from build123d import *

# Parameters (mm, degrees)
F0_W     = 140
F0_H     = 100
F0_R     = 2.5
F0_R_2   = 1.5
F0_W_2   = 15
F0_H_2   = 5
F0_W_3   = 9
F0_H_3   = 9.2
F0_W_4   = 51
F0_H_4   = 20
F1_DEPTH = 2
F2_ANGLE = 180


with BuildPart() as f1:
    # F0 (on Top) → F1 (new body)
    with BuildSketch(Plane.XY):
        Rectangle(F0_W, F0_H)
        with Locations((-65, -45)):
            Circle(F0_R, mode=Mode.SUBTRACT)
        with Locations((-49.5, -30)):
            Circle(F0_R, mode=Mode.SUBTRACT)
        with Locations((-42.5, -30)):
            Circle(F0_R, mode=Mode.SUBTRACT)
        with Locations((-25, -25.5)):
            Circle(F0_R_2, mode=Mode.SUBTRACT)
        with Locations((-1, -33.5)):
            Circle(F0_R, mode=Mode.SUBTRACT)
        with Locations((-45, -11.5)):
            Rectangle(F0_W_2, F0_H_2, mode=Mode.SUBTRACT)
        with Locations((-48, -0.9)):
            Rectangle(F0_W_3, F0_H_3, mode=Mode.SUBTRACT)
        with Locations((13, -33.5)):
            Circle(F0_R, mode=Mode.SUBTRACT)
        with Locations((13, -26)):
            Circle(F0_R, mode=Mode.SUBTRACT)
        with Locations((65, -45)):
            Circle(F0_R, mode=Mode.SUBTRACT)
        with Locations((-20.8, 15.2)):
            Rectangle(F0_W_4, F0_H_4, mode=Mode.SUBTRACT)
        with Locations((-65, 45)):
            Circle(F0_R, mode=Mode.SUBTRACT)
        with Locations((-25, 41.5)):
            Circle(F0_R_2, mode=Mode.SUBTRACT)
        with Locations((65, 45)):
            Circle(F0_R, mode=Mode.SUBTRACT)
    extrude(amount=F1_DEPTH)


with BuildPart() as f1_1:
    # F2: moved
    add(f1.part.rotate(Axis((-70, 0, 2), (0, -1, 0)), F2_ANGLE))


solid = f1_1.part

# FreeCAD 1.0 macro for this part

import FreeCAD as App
import Part
import Sketcher

doc = App.newDocument("Part")
params = doc.addObject("Spreadsheet::Sheet", "Params")
for row, (alias, value) in enumerate([
    ("sketch1_diameter", "5 mm"),
    ("sketch1_diameter2", "3 mm"),
    ("sketch1_width", "140 mm"),
    ("sketch1_width2", "15 mm"),
    ("sketch1_width3", "9 mm"),
    ("pad1_length", "2 mm"),
], start=1):
    params.set(f"A{row}", alias)
    params.set(f"B{row}", "=" + value)
    params.setAlias(f"B{row}", alias)

body = doc.addObject("PartDesign::Body", "Body")

# Sketch on XY plane
sketch1 = body.newObject("Sketcher::SketchObject", "Sketch")
sketch1.AttachmentSupport = (doc.getObject("XY_Plane"), [""])
sketch1.MapMode = "FlatFace"
sketch1.addGeometry(Part.LineSegment(App.Vector(-70, 50, 0), App.Vector(-70, -50, 0)), False)
sketch1.addGeometry(Part.LineSegment(App.Vector(-70, -50, 0), App.Vector(70, -50, 0)), False)
sketch1.addGeometry(Part.LineSegment(App.Vector(70, -50, 0), App.Vector(70, 50, 0)), False)
sketch1.addGeometry(Part.LineSegment(App.Vector(70, 50, 0), App.Vector(-70, 50, 0)), False)
sketch1.addGeometry(Part.Circle(App.Vector(-65, -45, 0), App.Vector(0, 0, 1), 2.5), False)
sketch1.addGeometry(Part.Circle(App.Vector(-49.5, -30, 0), App.Vector(0, 0, 1), 2.5), False)
sketch1.addGeometry(Part.Circle(App.Vector(-42.5, -30, 0), App.Vector(0, 0, 1), 2.5), False)
sketch1.addGeometry(Part.Circle(App.Vector(-25, -25.5, 0), App.Vector(0, 0, 1), 1.5), False)
sketch1.addGeometry(Part.Circle(App.Vector(-1, -33.5, 0), App.Vector(0, 0, 1), 2.5), False)
sketch1.addGeometry(Part.LineSegment(App.Vector(-37.5, -14, 0), App.Vector(-52.5, -14, 0)), False)
sketch1.addGeometry(Part.LineSegment(App.Vector(-52.5, -14, 0), App.Vector(-52.5, -9, 0)), False)
sketch1.addGeometry(Part.LineSegment(App.Vector(-52.5, -9, 0), App.Vector(-37.5, -9, 0)), False)
sketch1.addGeometry(Part.LineSegment(App.Vector(-37.5, -9, 0), App.Vector(-37.5, -14, 0)), False)
sketch1.addGeometry(Part.LineSegment(App.Vector(-43.5, -5.5, 0), App.Vector(-52.5, -5.5, 0)), False)
sketch1.addGeometry(Part.LineSegment(App.Vector(-52.5, -5.5, 0), App.Vector(-52.5, 3.7, 0)), False)
sketch1.addGeometry(Part.LineSegment(App.Vector(-52.5, 3.7, 0), App.Vector(-43.5, 3.7, 0)), False)
sketch1.addGeometry(Part.LineSegment(App.Vector(-43.5, 3.7, 0), App.Vector(-43.5, -5.5, 0)), False)
sketch1.addGeometry(Part.Circle(App.Vector(13, -33.5, 0), App.Vector(0, 0, 1), 2.5), False)
sketch1.addGeometry(Part.Circle(App.Vector(13, -26, 0), App.Vector(0, 0, 1), 2.5), False)
sketch1.addGeometry(Part.Circle(App.Vector(65, -45, 0), App.Vector(0, 0, 1), 2.5), False)
sketch1.addGeometry(Part.LineSegment(App.Vector(4.7, 5.2, 0), App.Vector(-46.3, 5.2, 0)), False)
sketch1.addGeometry(Part.LineSegment(App.Vector(-46.3, 5.2, 0), App.Vector(-46.3, 25.2, 0)), False)
sketch1.addGeometry(Part.LineSegment(App.Vector(-46.3, 25.2, 0), App.Vector(4.7, 25.2, 0)), False)
sketch1.addGeometry(Part.LineSegment(App.Vector(4.7, 25.2, 0), App.Vector(4.7, 5.2, 0)), False)
sketch1.addGeometry(Part.Circle(App.Vector(-65, 45, 0), App.Vector(0, 0, 1), 2.5), False)
sketch1.addGeometry(Part.Circle(App.Vector(-25, 41.5, 0), App.Vector(0, 0, 1), 1.5), False)
sketch1.addGeometry(Part.Circle(App.Vector(65, 45, 0), App.Vector(0, 0, 1), 2.5), False)
sketch1.addConstraint(Sketcher.Constraint("Coincident", 0, 2, 1, 1))
sketch1.addConstraint(Sketcher.Constraint("Coincident", 1, 2, 2, 1))
sketch1.addConstraint(Sketcher.Constraint("Coincident", 2, 2, 3, 1))
sketch1.addConstraint(Sketcher.Constraint("Coincident", 3, 2, 0, 1))
sketch1.addConstraint(Sketcher.Constraint("Coincident", 9, 2, 10, 1))
sketch1.addConstraint(Sketcher.Constraint("Coincident", 10, 2, 11, 1))
sketch1.addConstraint(Sketcher.Constraint("Coincident", 11, 2, 12, 1))
sketch1.addConstraint(Sketcher.Constraint("Coincident", 12, 2, 9, 1))
sketch1.addConstraint(Sketcher.Constraint("Coincident", 13, 2, 14, 1))
sketch1.addConstraint(Sketcher.Constraint("Coincident", 14, 2, 15, 1))
sketch1.addConstraint(Sketcher.Constraint("Coincident", 15, 2, 16, 1))
sketch1.addConstraint(Sketcher.Constraint("Coincident", 16, 2, 13, 1))
sketch1.addConstraint(Sketcher.Constraint("Coincident", 20, 2, 21, 1))
sketch1.addConstraint(Sketcher.Constraint("Coincident", 21, 2, 22, 1))
sketch1.addConstraint(Sketcher.Constraint("Coincident", 22, 2, 23, 1))
sketch1.addConstraint(Sketcher.Constraint("Coincident", 23, 2, 20, 1))
sketch1.addConstraint(Sketcher.Constraint("Vertical", 0))
sketch1.addConstraint(Sketcher.Constraint("Horizontal", 1))
sketch1.addConstraint(Sketcher.Constraint("Vertical", 2))
sketch1.addConstraint(Sketcher.Constraint("Horizontal", 3))
sketch1.addConstraint(Sketcher.Constraint("Horizontal", 9))
sketch1.addConstraint(Sketcher.Constraint("Vertical", 10))
sketch1.addConstraint(Sketcher.Constraint("Horizontal", 11))
sketch1.addConstraint(Sketcher.Constraint("Vertical", 12))
sketch1.addConstraint(Sketcher.Constraint("Horizontal", 13))
sketch1.addConstraint(Sketcher.Constraint("Vertical", 14))
sketch1.addConstraint(Sketcher.Constraint("Horizontal", 15))
sketch1.addConstraint(Sketcher.Constraint("Vertical", 16))
sketch1.addConstraint(Sketcher.Constraint("Horizontal", 20))
sketch1.addConstraint(Sketcher.Constraint("Vertical", 21))
sketch1.addConstraint(Sketcher.Constraint("Horizontal", 22))
sketch1.addConstraint(Sketcher.Constraint("Vertical", 23))
sketch1.addConstraint(Sketcher.Constraint("Equal", 4, 5))
sketch1.addConstraint(Sketcher.Constraint("Equal", 5, 6))
sketch1.addConstraint(Sketcher.Constraint("Equal", 6, 8))
sketch1.addConstraint(Sketcher.Constraint("Equal", 8, 17))
sketch1.addConstraint(Sketcher.Constraint("Equal", 17, 18))
sketch1.addConstraint(Sketcher.Constraint("Equal", 18, 19))
sketch1.addConstraint(Sketcher.Constraint("Equal", 19, 24))
sketch1.addConstraint(Sketcher.Constraint("Equal", 7, 25))
sketch1.addConstraint(Sketcher.Constraint("Equal", 24, 26))
sketch1.addConstraint(Sketcher.Constraint("Symmetric", 19, 3, 24, 3, -1, 1))
sketch1.addConstraint(Sketcher.Constraint("Symmetric", 4, 3, 26, 3, -1, 1))
sketch1.addConstraint(Sketcher.Constraint("Symmetric", 0, 2, 2, 2, -1, 1))
sketch1.addConstraint(Sketcher.Constraint("Symmetric", 4, 3, 19, 3, -2))
sketch1.addConstraint(Sketcher.Constraint("Horizontal", 5, 3, 6, 3))
sketch1.addConstraint(Sketcher.Constraint("Horizontal", 8, 3, 17, 3))
sketch1.addConstraint(Sketcher.Constraint("Vertical", 17, 3, 18, 3))
sketch1.addConstraint(Sketcher.Constraint("Vertical", 7, 3, 25, 3))
sketch1.addConstraint(Sketcher.Constraint("Vertical", 10, 2, 13, 2))
sketch1.addConstraint(Sketcher.Constraint("Diameter", 4, 5.0))
sketch1.addConstraint(Sketcher.Constraint("Diameter", 7, 3.0))
sketch1.addConstraint(Sketcher.Constraint("DistanceX", 1, 1, 1, 2, 140.0))
sketch1.addConstraint(Sketcher.Constraint("DistanceX", 9, 2, 9, 1, 15.0))
sketch1.addConstraint(Sketcher.Constraint("DistanceX", 13, 2, 13, 1, 9.0))
sketch1.addConstraint(Sketcher.Constraint("DistanceX", 20, 2, 20, 1, 51.0))
sketch1.addConstraint(Sketcher.Constraint("DistanceY", 0, 2, 0, 1, 100.0))
sketch1.addConstraint(Sketcher.Constraint("DistanceY", 10, 1, 10, 2, 5.0))
sketch1.addConstraint(Sketcher.Constraint("DistanceY", 21, 1, 21, 2, 20.0))
sketch1.addConstraint(Sketcher.Constraint("DistanceY", 14, 1, 14, 2, 9.2))
sketch1.addConstraint(Sketcher.Constraint("DistanceX", 4, 3, -1, 1, 65.0))
sketch1.addConstraint(Sketcher.Constraint("DistanceY", 4, 3, -1, 1, 45.0))
sketch1.addConstraint(Sketcher.Constraint("DistanceY", 5, 3, -1, 1, 30.0))
sketch1.addConstraint(Sketcher.Constraint("DistanceX", 7, 3, -1, 1, 25.0))
sketch1.addConstraint(Sketcher.Constraint("DistanceX", 8, 3, -1, 1, 1.0))
sketch1.addConstraint(Sketcher.Constraint("DistanceX", -1, 1, 17, 3, 13.0))
sketch1.addConstraint(Sketcher.Constraint("DistanceY", 18, 3, -1, 1, 26.0))
sketch1.addConstraint(Sketcher.Constraint("DistanceY", 9, 2, -1, 1, 14.0))
sketch1.addConstraint(Sketcher.Constraint("DistanceX", 5, 3, 6, 3, 7.0))
sketch1.addConstraint(Sketcher.Constraint("DistanceY", 8, 3, 7, 3, 8.0))
sketch1.addConstraint(Sketcher.Constraint("DistanceY", 7, 3, 25, 3, 67.0))
sketch1.addConstraint(Sketcher.Constraint("DistanceX", 9, 2, 5, 3, 3.0))
sketch1.addConstraint(Sketcher.Constraint("DistanceX", 5, 3, -1, 1, 49.5))
sketch1.addConstraint(Sketcher.Constraint("DistanceY", 7, 3, -1, 1, 25.5))
sketch1.addConstraint(Sketcher.Constraint("DistanceY", 13, 2, -1, 1, 5.5))
sketch1.addConstraint(Sketcher.Constraint("DistanceX", 20, 2, -1, 1, 46.3))
sketch1.addConstraint(Sketcher.Constraint("DistanceY", -1, 1, 20, 2, 5.2))
sketch1.setExpression("Constraints[50]", "Params.sketch1_diameter")
sketch1.setExpression("Constraints[51]", "Params.sketch1_diameter2")
sketch1.setExpression("Constraints[52]", "Params.sketch1_width")
sketch1.setExpression("Constraints[53]", "Params.sketch1_width2")
sketch1.setExpression("Constraints[54]", "Params.sketch1_width3")
pad1 = body.newObject("PartDesign::Pad", "Pad")
pad1.Profile = sketch1
pad1.setExpression("Length", "Params.pad1_length")
body2 = doc.addObject("PartDesign::Body", "Body001")
doc.recompute()

body.Placement = App.Placement(App.Vector(-140, 0, 4), App.Rotation(App.Vector(0, -1, 0), 180))
boolean = body2.newObject("PartDesign::Boolean", "Boolean")
boolean.Type = "Fuse"
boolean.addObjects([body])

doc.recompute()
